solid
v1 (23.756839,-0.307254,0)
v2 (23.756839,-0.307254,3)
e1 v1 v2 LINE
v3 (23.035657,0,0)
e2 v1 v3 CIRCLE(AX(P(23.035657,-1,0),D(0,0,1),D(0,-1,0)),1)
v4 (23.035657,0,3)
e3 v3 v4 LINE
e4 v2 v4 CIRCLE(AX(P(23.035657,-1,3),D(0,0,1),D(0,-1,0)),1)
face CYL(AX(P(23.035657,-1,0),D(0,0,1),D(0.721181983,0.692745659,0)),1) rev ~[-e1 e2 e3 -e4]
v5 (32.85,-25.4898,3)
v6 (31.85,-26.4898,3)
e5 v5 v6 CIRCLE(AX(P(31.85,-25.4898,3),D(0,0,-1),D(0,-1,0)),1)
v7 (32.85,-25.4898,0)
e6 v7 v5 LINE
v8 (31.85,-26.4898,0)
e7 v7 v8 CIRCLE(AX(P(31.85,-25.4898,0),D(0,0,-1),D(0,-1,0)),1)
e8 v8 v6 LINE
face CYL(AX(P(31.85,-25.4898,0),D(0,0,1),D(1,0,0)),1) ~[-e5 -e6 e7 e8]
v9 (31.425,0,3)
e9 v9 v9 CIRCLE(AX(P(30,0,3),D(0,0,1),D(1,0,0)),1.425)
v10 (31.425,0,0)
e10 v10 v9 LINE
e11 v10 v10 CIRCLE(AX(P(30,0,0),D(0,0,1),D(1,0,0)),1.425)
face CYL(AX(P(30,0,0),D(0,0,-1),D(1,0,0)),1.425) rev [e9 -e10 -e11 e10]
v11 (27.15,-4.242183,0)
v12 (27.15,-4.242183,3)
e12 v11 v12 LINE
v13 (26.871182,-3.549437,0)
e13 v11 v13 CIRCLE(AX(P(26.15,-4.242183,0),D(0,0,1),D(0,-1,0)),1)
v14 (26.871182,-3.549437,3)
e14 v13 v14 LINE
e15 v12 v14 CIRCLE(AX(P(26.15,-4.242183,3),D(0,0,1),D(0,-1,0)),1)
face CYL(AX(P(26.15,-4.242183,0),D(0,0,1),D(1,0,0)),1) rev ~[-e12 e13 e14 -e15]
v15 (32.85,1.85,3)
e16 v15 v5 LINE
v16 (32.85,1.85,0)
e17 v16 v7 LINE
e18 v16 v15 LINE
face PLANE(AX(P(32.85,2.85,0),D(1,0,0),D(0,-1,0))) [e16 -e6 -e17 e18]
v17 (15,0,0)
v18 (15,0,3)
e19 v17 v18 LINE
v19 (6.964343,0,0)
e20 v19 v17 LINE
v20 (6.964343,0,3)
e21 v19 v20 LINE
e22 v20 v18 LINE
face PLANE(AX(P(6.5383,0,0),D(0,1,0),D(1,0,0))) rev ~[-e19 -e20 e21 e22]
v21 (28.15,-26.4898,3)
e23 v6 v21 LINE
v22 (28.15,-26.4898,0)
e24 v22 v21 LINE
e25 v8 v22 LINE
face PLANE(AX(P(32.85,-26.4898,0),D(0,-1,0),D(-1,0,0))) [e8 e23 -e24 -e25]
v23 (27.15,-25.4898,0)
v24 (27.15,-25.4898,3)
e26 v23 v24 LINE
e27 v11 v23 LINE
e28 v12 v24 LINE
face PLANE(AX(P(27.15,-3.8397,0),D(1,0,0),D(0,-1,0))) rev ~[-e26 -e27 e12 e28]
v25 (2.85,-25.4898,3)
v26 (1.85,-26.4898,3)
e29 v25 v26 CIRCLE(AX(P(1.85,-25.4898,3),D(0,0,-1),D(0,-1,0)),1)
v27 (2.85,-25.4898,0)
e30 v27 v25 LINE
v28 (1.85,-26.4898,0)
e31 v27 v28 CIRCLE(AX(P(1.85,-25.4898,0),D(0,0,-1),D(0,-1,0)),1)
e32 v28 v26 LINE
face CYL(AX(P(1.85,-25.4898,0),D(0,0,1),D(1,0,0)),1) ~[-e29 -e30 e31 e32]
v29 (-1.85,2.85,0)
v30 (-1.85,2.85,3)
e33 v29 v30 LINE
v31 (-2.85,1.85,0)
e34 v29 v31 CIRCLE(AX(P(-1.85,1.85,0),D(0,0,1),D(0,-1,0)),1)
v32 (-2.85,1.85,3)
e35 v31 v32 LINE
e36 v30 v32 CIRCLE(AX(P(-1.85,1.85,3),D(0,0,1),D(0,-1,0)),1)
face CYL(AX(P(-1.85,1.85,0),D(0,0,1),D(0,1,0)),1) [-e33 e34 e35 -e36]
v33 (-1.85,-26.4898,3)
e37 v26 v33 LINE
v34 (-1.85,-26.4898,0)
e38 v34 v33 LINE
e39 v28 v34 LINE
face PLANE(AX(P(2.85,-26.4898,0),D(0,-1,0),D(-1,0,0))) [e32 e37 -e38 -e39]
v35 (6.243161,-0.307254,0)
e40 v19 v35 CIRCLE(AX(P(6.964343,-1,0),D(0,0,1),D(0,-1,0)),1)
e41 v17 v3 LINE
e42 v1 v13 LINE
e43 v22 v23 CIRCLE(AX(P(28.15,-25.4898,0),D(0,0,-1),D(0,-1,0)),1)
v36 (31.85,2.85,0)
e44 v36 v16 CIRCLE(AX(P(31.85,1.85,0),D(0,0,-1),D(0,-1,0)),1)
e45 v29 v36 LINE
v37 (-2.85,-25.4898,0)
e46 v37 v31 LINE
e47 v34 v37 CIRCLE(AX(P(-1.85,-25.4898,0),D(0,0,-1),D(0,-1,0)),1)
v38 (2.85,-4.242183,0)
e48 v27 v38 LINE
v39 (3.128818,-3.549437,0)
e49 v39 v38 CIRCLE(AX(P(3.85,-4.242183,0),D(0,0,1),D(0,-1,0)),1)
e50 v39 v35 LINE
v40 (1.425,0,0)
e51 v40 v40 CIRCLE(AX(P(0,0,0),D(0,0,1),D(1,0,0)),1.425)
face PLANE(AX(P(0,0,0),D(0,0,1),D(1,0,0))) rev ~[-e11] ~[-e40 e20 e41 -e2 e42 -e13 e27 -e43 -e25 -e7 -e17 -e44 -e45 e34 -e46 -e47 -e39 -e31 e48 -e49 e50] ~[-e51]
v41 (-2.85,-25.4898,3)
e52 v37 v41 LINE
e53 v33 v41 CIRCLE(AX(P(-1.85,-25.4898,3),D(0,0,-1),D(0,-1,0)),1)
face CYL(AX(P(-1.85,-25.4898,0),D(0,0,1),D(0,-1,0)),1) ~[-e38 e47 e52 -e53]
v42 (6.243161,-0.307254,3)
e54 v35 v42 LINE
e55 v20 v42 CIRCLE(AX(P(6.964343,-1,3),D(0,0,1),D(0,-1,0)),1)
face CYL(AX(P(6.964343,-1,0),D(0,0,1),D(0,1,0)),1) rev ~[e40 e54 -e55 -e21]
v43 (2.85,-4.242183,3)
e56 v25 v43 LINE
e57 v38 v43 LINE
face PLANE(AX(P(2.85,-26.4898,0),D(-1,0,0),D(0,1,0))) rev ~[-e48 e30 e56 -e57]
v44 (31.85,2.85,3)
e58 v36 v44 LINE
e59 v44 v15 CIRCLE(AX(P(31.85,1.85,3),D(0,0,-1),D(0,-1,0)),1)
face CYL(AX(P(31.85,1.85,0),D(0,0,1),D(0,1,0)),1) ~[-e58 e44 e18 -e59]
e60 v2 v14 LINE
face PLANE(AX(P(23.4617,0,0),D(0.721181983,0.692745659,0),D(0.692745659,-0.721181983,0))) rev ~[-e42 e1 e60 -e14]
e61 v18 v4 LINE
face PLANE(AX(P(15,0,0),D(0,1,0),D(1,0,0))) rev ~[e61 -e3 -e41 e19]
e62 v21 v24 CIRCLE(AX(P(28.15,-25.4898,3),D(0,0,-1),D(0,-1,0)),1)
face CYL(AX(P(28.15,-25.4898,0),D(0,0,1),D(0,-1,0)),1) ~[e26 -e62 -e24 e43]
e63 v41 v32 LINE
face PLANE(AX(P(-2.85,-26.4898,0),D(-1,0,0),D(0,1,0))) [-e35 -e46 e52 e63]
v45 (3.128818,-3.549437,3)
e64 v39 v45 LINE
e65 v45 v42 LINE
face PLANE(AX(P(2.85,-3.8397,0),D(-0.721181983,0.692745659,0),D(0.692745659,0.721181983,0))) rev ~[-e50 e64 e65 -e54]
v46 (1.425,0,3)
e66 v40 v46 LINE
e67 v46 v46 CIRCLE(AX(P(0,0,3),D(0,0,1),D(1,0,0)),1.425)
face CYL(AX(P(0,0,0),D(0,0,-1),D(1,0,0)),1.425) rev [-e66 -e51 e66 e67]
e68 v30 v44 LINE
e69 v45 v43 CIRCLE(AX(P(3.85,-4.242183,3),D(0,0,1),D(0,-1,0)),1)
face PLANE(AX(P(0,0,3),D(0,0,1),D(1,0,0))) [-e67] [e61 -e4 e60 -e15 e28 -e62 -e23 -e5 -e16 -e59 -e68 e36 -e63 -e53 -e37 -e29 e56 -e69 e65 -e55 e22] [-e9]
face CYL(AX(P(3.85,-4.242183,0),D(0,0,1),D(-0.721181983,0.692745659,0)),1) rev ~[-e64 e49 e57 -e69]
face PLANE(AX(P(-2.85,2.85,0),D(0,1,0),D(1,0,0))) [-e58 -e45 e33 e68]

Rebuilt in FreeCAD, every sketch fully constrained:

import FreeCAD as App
import Part
import Sketcher

V = App.Vector
Q = App.Units.Quantity


def edges_at(feature, points):
    """Names of the edges that pass closest to the given points."""
    edges = feature.Shape.Edges
    near = lambda p: min(range(len(edges)), key=lambda i: edges[i].distToShape(Part.Vertex(*p))[0])
    return sorted({f"Edge{near(p) + 1}" for p in points})

doc = App.newDocument("Part")
body = doc.addObject("PartDesign::Body", "Body")

sketch1 = body.newObject("Sketcher::SketchObject", "Sketch")
sketch1.AttachmentSupport = (doc.getObject("XY_Plane"), [""])
sketch1.MapMode = "FlatFace"
sketch1.addGeometry(Part.LineSegment(V(32.9, 2.9, 0), V(-2.9, 2.9, 0)), False)
sketch1.addGeometry(Part.LineSegment(V(-2.9, 2.9, 0), V(-2.9, -26.5, 0)), False)
sketch1.addGeometry(Part.LineSegment(V(-2.9, -26.5, 0), V(2.9, -26.5, 0)), False)
sketch1.addGeometry(Part.LineSegment(V(2.9, -26.5, 0), V(2.9, -3.8, 0)), False)
sketch1.addGeometry(Part.LineSegment(V(2.9, -3.8, 0), V(6.5, 0, 0)), False)
sketch1.addGeometry(Part.LineSegment(V(6.5, 0, 0), V(23.5, 0, 0)), False)
sketch1.addGeometry(Part.LineSegment(V(23.5, 0, 0), V(27.1, -3.8, 0)), False)
sketch1.addGeometry(Part.LineSegment(V(27.1, -3.8, 0), V(27.1, -26.5, 0)), False)
sketch1.addGeometry(Part.LineSegment(V(27.1, -26.5, 0), V(32.9, -26.5, 0)), False)
sketch1.addGeometry(Part.LineSegment(V(32.9, -26.5, 0), V(32.9, 2.9, 0)), False)
sketch1.addGeometry(Part.Circle(V(0, 0, 0), V(0, 0, 1), 1.4), False)
sketch1.addGeometry(Part.Circle(V(30, 0, 0), V(0, 0, 1), 1.4), False)
sketch1.addConstraint(Sketcher.Constraint("Coincident", 0, 2, 1, 1))
sketch1.addConstraint(Sketcher.Constraint("Coincident", 1, 2, 2, 1))
sketch1.addConstraint(Sketcher.Constraint("Coincident", 2, 2, 3, 1))
sketch1.addConstraint(Sketcher.Constraint("Coincident", 3, 2, 4, 1))
sketch1.addConstraint(Sketcher.Constraint("Coincident", 4, 2, 5, 1))
sketch1.addConstraint(Sketcher.Constraint("Coincident", 5, 2, 6, 1))
sketch1.addConstraint(Sketcher.Constraint("Coincident", 6, 2, 7, 1))
sketch1.addConstraint(Sketcher.Constraint("Coincident", 7, 2, 8, 1))
sketch1.addConstraint(Sketcher.Constraint("Coincident", 8, 2, 9, 1))
sketch1.addConstraint(Sketcher.Constraint("Coincident", 9, 2, 0, 1))
sketch1.addConstraint(Sketcher.Constraint("Horizontal", 0))
sketch1.addConstraint(Sketcher.Constraint("Vertical", 1))
sketch1.addConstraint(Sketcher.Constraint("Horizontal", 2))
sketch1.addConstraint(Sketcher.Constraint("Vertical", 3))
sketch1.addConstraint(Sketcher.Constraint("Horizontal", 5))
sketch1.addConstraint(Sketcher.Constraint("Vertical", 7))
sketch1.addConstraint(Sketcher.Constraint("Horizontal", 8))
sketch1.addConstraint(Sketcher.Constraint("Vertical", 9))
sketch1.addConstraint(Sketcher.Constraint("Coincident", 10, 3, -1, 1))
sketch1.addConstraint(Sketcher.Constraint("Equal", 10, 11))
sketch1.addConstraint(Sketcher.Constraint("PointOnObject", 11, 3, -1))
sketch1.addConstraint(Sketcher.Constraint("PointOnObject", 4, 2, -1))
sketch1.addConstraint(Sketcher.Constraint("Horizontal", 3, 2, 6, 2))
sketch1.addConstraint(Sketcher.Constraint("Horizontal", 2, 2, 7, 2))
sketch1.addConstraint(Sketcher.Constraint("Equal", 2, 8))
sketch1.addConstraint(Sketcher.Constraint("Equal", 4, 6))
sketch1.addConstraint(Sketcher.Constraint("Diameter", 10, Q("2.85 mm")))
sketch1.addConstraint(Sketcher.Constraint("DistanceX", -1, 1, 11, 3, Q("30 mm")))
sketch1.addConstraint(Sketcher.Constraint("DistanceX", 1, 2, 7, 2, Q("30 mm")))
sketch1.addConstraint(Sketcher.Constraint("DistanceX", 0, 2, -1, 1, Q("2.85 mm")))
sketch1.addConstraint(Sketcher.Constraint("DistanceY", -1, 1, 0, 2, Q("2.85 mm")))
sketch1.addConstraint(Sketcher.Constraint("DistanceX", -1, 1, 2, 2, Q("2.85 mm")))
sketch1.addConstraint(Sketcher.Constraint("DistanceY", 3, 1, 3, 2, Q("22.65 mm")))
sketch1.addConstraint(Sketcher.Constraint("DistanceX", 5, 1, 5, 2, Q("16.9234 mm")))
sketch1.addConstraint(Sketcher.Constraint("DistanceY", 1, 2, 1, 1, Q("29.3398 mm")))
pad1 = body.newObject("PartDesign::Pad", "Pad")
pad1.Profile = sketch1
pad1.Length = 3
doc.recompute()

fillet = body.newObject("PartDesign::Fillet", "Fillet")
fillet.Base = (pad1, edges_at(pad1, [
    (-2.85, 2.85, 1.5),
    (32.85, 2.85, 1.5),
    (-2.85, -26.49, 1.5),
    (2.85, -26.49, 1.5),
    (32.85, -26.49, 1.5),
    (27.15, -26.49, 1.5),
    (2.85, -3.84, 1.5),
    (6.538, 0, 1.5),
    (23.462, 0, 1.5),
    (27.15, -3.84, 1.5),
]))
fillet.Radius = 1

doc.recompute()
